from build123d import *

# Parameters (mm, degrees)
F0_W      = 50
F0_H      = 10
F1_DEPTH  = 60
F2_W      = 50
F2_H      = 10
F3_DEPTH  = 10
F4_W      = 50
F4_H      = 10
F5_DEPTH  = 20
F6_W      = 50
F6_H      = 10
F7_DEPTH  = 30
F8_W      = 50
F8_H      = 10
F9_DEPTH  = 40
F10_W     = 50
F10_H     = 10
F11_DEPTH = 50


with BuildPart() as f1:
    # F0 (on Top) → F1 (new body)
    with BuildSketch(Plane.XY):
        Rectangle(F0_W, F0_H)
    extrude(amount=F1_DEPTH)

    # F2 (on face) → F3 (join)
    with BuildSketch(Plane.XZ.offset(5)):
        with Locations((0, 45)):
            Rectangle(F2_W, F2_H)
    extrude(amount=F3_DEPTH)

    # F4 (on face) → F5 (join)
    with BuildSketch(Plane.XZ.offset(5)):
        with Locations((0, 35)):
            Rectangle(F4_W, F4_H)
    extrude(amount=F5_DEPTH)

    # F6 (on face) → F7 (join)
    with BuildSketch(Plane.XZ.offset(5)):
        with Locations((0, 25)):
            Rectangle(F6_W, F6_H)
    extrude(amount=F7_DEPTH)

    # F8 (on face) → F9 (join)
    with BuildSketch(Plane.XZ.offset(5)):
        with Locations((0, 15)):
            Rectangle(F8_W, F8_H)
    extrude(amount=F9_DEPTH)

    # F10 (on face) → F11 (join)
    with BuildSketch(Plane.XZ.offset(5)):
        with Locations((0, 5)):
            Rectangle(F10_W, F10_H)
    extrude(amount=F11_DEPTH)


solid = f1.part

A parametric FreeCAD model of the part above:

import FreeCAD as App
import Part
import Sketcher
from FreeCAD import Vector

doc = App.newDocument("Part")
params = doc.addObject("Spreadsheet::Sheet", "Params")
for row, (alias, value) in enumerate([
    ("sketch1_width", "50 mm"),
    ("sketch1_height", "10 mm"),
    ("pad1_length", "60 mm"),
    ("sketch2_width", "50 mm"),
    ("sketch2_height", "10 mm"),
    ("pad2_length", "10 mm"),
    ("sketch3_width", "50 mm"),
    ("sketch3_height", "10 mm"),
    ("pad3_length", "20 mm"),
    ("sketch4_width", "50 mm"),
    ("sketch4_height", "10 mm"),
    ("pad4_length", "30 mm"),
    ("sketch5_width", "50 mm"),
    ("sketch5_height", "10 mm"),
    ("pad5_length", "40 mm"),
    ("sketch6_width", "50 mm"),
    ("sketch6_height", "10 mm"),
    ("pad6_length", "50 mm"),
], start=1):
    params.set(f"A{row}", alias)
    params.set(f"B{row}", "=" + value)
    params.setAlias(f"B{row}", alias)

body = doc.addObject("PartDesign::Body", "Body")

# Sketch on XY plane
sketch1 = body.newObject("Sketcher::SketchObject", "Sketch")
sketch1.AttachmentSupport = (doc.getObject("XY_Plane"), [""])
sketch1.MapMode = "FlatFace"
sketch1.addGeometry([
    Part.LineSegment(Vector(-25, 5, 0), Vector(-25, -5, 0)),
    Part.LineSegment(Vector(-25, -5, 0), Vector(25, -5, 0)),
    Part.LineSegment(Vector(25, -5, 0), Vector(25, 5, 0)),
    Part.LineSegment(Vector(25, 5, 0), Vector(-25, 5, 0)),
], False)
sketch1.addConstraint([
    Sketcher.Constraint("Coincident", 0, 2, 1, 1),
    Sketcher.Constraint("Coincident", 1, 2, 2, 1),
    Sketcher.Constraint("Coincident", 2, 2, 3, 1),
    Sketcher.Constraint("Coincident", 3, 2, 0, 1),
    Sketcher.Constraint("Vertical", 0),
    Sketcher.Constraint("Horizontal", 1),
    Sketcher.Constraint("Vertical", 2),
    Sketcher.Constraint("Horizontal", 3),
    Sketcher.Constraint("Symmetric", 0, 2, 2, 2, -1, 1),
    Sketcher.Constraint("DistanceX", 1, 1, 1, 2, 50.0),
    Sketcher.Constraint("DistanceY", 0, 2, 0, 1, 10.0),
])
sketch1.setExpression("Constraints[9]", "Params.sketch1_width")
sketch1.setExpression("Constraints[10]", "Params.sketch1_height")
pad1 = body.newObject("PartDesign::Pad", "Pad")
pad1.Profile = sketch1
pad1.setExpression("Length", "Params.pad1_length")

# Sketch on XZ plane
sketch2 = body.newObject("Sketcher::SketchObject", "Sketch001")
sketch2.AttachmentSupport = (doc.getObject("XZ_Plane"), [""])
sketch2.MapMode = "FlatFace"
sketch2.AttachmentOffset = App.Placement(Vector(0, 0, 5), App.Rotation())
sketch2.addGeometry([
    Part.LineSegment(Vector(-25, 50, 0), Vector(-25, 40, 0)),
    Part.LineSegment(Vector(-25, 40, 0), Vector(25, 40, 0)),
    Part.LineSegment(Vector(25, 40, 0), Vector(25, 50, 0)),
    Part.LineSegment(Vector(25, 50, 0), Vector(-25, 50, 0)),
], False)
sketch2.addConstraint([
    Sketcher.Constraint("Coincident", 0, 2, 1, 1),
    Sketcher.Constraint("Coincident", 1, 2, 2, 1),
    Sketcher.Constraint("Coincident", 2, 2, 3, 1),
    Sketcher.Constraint("Coincident", 3, 2, 0, 1),
    Sketcher.Constraint("Vertical", 0),
    Sketcher.Constraint("Horizontal", 1),
    Sketcher.Constraint("Vertical", 2),
    Sketcher.Constraint("Horizontal", 3),
    Sketcher.Constraint("DistanceX", 1, 1, 1, 2, 50.0),
    Sketcher.Constraint("DistanceY", 0, 2, 0, 1, 10.0),
    Sketcher.Constraint("DistanceX", 0, 2, -1, 1, 25.0),
    Sketcher.Constraint("DistanceY", -1, 1, 0, 2, 40.0),
])
sketch2.setExpression("Constraints[8]", "Params.sketch2_width")
sketch2.setExpression("Constraints[9]", "Params.sketch2_height")
pad2 = body.newObject("PartDesign::Pad", "Pad001")
pad2.Profile = sketch2
pad2.setExpression("Length", "Params.pad2_length")

# Sketch on XZ plane
sketch3 = body.newObject("Sketcher::SketchObject", "Sketch002")
sketch3.AttachmentSupport = (doc.getObject("XZ_Plane"), [""])
sketch3.MapMode = "FlatFace"
sketch3.AttachmentOffset = App.Placement(Vector(0, 0, 5), App.Rotation())
sketch3.addGeometry([
    Part.LineSegment(Vector(-25, 40, 0), Vector(-25, 30, 0)),
    Part.LineSegment(Vector(-25, 30, 0), Vector(25, 30, 0)),
    Part.LineSegment(Vector(25, 30, 0), Vector(25, 40, 0)),
    Part.LineSegment(Vector(25, 40, 0), Vector(-25, 40, 0)),
], False)
sketch3.addConstraint([
    Sketcher.Constraint("Coincident", 0, 2, 1, 1),
    Sketcher.Constraint("Coincident", 1, 2, 2, 1),
    Sketcher.Constraint("Coincident", 2, 2, 3, 1),
    Sketcher.Constraint("Coincident", 3, 2, 0, 1),
    Sketcher.Constraint("Vertical", 0),
    Sketcher.Constraint("Horizontal", 1),
    Sketcher.Constraint("Vertical", 2),
    Sketcher.Constraint("Horizontal", 3),
    Sketcher.Constraint("DistanceX", 1, 1, 1, 2, 50.0),
    Sketcher.Constraint("DistanceY", 0, 2, 0, 1, 10.0),
    Sketcher.Constraint("DistanceX", 0, 2, -1, 1, 25.0),
    Sketcher.Constraint("DistanceY", -1, 1, 0, 2, 30.0),
])
sketch3.setExpression("Constraints[8]", "Params.sketch3_width")
sketch3.setExpression("Constraints[9]", "Params.sketch3_height")
pad3 = body.newObject("PartDesign::Pad", "Pad002")
pad3.Profile = sketch3
pad3.setExpression("Length", "Params.pad3_length")

# Sketch on XZ plane
sketch4 = body.newObject("Sketcher::SketchObject", "Sketch003")
sketch4.AttachmentSupport = (doc.getObject("XZ_Plane"), [""])
sketch4.MapMode = "FlatFace"
sketch4.AttachmentOffset = App.Placement(Vector(0, 0, 5), App.Rotation())
sketch4.addGeometry([
    Part.LineSegment(Vector(-25, 30, 0), Vector(-25, 20, 0)),
    Part.LineSegment(Vector(-25, 20, 0), Vector(25, 20, 0)),
    Part.LineSegment(Vector(25, 20, 0), Vector(25, 30, 0)),
    Part.LineSegment(Vector(25, 30, 0), Vector(-25, 30, 0)),
], False)
sketch4.addConstraint([
    Sketcher.Constraint("Coincident", 0, 2, 1, 1),
    Sketcher.Constraint("Coincident", 1, 2, 2, 1),
    Sketcher.Constraint("Coincident", 2, 2, 3, 1),
    Sketcher.Constraint("Coincident", 3, 2, 0, 1),
    Sketcher.Constraint("Vertical", 0),
    Sketcher.Constraint("Horizontal", 1),
    Sketcher.Constraint("Vertical", 2),
    Sketcher.Constraint("Horizontal", 3),
    Sketcher.Constraint("DistanceX", 1, 1, 1, 2, 50.0),
    Sketcher.Constraint("DistanceY", 0, 2, 0, 1, 10.0),
    Sketcher.Constraint("DistanceX", 0, 2, -1, 1, 25.0),
    Sketcher.Constraint("DistanceY", -1, 1, 0, 2, 20.0),
])
sketch4.setExpression("Constraints[8]", "Params.sketch4_width")
sketch4.setExpression("Constraints[9]", "Params.sketch4_height")
pad4 = body.newObject("PartDesign::Pad", "Pad003")
pad4.Profile = sketch4
pad4.setExpression("Length", "Params.pad4_length")

# Sketch on XZ plane
sketch5 = body.newObject("Sketcher::SketchObject", "Sketch004")
sketch5.AttachmentSupport = (doc.getObject("XZ_Plane"), [""])
sketch5.MapMode = "FlatFace"
sketch5.AttachmentOffset = App.Placement(Vector(0, 0, 5), App.Rotation())
sketch5.addGeometry([
    Part.LineSegment(Vector(-25, 20, 0), Vector(-25, 10, 0)),
    Part.LineSegment(Vector(-25, 10, 0), Vector(25, 10, 0)),
    Part.LineSegment(Vector(25, 10, 0), Vector(25, 20, 0)),
    Part.LineSegment(Vector(25, 20, 0), Vector(-25, 20, 0)),
], False)
sketch5.addConstraint([
    Sketcher.Constraint("Coincident", 0, 2, 1, 1),
    Sketcher.Constraint("Coincident", 1, 2, 2, 1),
    Sketcher.Constraint("Coincident", 2, 2, 3, 1),
    Sketcher.Constraint("Coincident", 3, 2, 0, 1),
    Sketcher.Constraint("Vertical", 0),
    Sketcher.Constraint("Horizontal", 1),
    Sketcher.Constraint("Vertical", 2),
    Sketcher.Constraint("Horizontal", 3),
    Sketcher.Constraint("DistanceX", 1, 1, 1, 2, 50.0),
    Sketcher.Constraint("DistanceY", 0, 2, 0, 1, 10.0),
    Sketcher.Constraint("DistanceX", 0, 2, -1, 1, 25.0),
    Sketcher.Constraint("DistanceY", -1, 1, 0, 2, 10.0),
])
sketch5.setExpression("Constraints[8]", "Params.sketch5_width")
sketch5.setExpression("Constraints[9]", "Params.sketch5_height")
pad5 = body.newObject("PartDesign::Pad", "Pad004")
pad5.Profile = sketch5
pad5.setExpression("Length", "Params.pad5_length")

# Sketch on XZ plane
sketch6 = body.newObject("Sketcher::SketchObject", "Sketch005")
sketch6.AttachmentSupport = (doc.getObject("XZ_Plane"), [""])
sketch6.MapMode = "FlatFace"
sketch6.AttachmentOffset = App.Placement(Vector(0, 0, 5), App.Rotation())
sketch6.addGeometry([
    Part.LineSegment(Vector(-25, 10, 0), Vector(-25, 0, 0)),
    Part.LineSegment(Vector(-25, 0, 0), Vector(25, 0, 0)),
    Part.LineSegment(Vector(25, 0, 0), Vector(25, 10, 0)),
    Part.LineSegment(Vector(25, 10, 0), Vector(-25, 10, 0)),
], False)
sketch6.addConstraint([
    Sketcher.Constraint("Coincident", 0, 2, 1, 1),
    Sketcher.Constraint("Coincident", 1, 2, 2, 1),
    Sketcher.Constraint("Coincident", 2, 2, 3, 1),
    Sketcher.Constraint("Coincident", 3, 2, 0, 1),
    Sketcher.Constraint("Vertical", 0),
    Sketcher.Constraint("Horizontal", 1),
    Sketcher.Constraint("Vertical", 2),
    Sketcher.Constraint("Horizontal", 3),
    Sketcher.Constraint("Symmetric", 0, 2, 1, 2, -1, 1),
    Sketcher.Constraint("DistanceX", 1, 1, 1, 2, 50.0),
    Sketcher.Constraint("DistanceY", 0, 2, 0, 1, 10.0),
])
sketch6.setExpression("Constraints[9]", "Params.sketch6_width")
sketch6.setExpression("Constraints[10]", "Params.sketch6_height")
pad6 = body.newObject("PartDesign::Pad", "Pad005")
pad6.Profile = sketch6
pad6.setExpression("Length", "Params.pad6_length")

doc.recompute()
